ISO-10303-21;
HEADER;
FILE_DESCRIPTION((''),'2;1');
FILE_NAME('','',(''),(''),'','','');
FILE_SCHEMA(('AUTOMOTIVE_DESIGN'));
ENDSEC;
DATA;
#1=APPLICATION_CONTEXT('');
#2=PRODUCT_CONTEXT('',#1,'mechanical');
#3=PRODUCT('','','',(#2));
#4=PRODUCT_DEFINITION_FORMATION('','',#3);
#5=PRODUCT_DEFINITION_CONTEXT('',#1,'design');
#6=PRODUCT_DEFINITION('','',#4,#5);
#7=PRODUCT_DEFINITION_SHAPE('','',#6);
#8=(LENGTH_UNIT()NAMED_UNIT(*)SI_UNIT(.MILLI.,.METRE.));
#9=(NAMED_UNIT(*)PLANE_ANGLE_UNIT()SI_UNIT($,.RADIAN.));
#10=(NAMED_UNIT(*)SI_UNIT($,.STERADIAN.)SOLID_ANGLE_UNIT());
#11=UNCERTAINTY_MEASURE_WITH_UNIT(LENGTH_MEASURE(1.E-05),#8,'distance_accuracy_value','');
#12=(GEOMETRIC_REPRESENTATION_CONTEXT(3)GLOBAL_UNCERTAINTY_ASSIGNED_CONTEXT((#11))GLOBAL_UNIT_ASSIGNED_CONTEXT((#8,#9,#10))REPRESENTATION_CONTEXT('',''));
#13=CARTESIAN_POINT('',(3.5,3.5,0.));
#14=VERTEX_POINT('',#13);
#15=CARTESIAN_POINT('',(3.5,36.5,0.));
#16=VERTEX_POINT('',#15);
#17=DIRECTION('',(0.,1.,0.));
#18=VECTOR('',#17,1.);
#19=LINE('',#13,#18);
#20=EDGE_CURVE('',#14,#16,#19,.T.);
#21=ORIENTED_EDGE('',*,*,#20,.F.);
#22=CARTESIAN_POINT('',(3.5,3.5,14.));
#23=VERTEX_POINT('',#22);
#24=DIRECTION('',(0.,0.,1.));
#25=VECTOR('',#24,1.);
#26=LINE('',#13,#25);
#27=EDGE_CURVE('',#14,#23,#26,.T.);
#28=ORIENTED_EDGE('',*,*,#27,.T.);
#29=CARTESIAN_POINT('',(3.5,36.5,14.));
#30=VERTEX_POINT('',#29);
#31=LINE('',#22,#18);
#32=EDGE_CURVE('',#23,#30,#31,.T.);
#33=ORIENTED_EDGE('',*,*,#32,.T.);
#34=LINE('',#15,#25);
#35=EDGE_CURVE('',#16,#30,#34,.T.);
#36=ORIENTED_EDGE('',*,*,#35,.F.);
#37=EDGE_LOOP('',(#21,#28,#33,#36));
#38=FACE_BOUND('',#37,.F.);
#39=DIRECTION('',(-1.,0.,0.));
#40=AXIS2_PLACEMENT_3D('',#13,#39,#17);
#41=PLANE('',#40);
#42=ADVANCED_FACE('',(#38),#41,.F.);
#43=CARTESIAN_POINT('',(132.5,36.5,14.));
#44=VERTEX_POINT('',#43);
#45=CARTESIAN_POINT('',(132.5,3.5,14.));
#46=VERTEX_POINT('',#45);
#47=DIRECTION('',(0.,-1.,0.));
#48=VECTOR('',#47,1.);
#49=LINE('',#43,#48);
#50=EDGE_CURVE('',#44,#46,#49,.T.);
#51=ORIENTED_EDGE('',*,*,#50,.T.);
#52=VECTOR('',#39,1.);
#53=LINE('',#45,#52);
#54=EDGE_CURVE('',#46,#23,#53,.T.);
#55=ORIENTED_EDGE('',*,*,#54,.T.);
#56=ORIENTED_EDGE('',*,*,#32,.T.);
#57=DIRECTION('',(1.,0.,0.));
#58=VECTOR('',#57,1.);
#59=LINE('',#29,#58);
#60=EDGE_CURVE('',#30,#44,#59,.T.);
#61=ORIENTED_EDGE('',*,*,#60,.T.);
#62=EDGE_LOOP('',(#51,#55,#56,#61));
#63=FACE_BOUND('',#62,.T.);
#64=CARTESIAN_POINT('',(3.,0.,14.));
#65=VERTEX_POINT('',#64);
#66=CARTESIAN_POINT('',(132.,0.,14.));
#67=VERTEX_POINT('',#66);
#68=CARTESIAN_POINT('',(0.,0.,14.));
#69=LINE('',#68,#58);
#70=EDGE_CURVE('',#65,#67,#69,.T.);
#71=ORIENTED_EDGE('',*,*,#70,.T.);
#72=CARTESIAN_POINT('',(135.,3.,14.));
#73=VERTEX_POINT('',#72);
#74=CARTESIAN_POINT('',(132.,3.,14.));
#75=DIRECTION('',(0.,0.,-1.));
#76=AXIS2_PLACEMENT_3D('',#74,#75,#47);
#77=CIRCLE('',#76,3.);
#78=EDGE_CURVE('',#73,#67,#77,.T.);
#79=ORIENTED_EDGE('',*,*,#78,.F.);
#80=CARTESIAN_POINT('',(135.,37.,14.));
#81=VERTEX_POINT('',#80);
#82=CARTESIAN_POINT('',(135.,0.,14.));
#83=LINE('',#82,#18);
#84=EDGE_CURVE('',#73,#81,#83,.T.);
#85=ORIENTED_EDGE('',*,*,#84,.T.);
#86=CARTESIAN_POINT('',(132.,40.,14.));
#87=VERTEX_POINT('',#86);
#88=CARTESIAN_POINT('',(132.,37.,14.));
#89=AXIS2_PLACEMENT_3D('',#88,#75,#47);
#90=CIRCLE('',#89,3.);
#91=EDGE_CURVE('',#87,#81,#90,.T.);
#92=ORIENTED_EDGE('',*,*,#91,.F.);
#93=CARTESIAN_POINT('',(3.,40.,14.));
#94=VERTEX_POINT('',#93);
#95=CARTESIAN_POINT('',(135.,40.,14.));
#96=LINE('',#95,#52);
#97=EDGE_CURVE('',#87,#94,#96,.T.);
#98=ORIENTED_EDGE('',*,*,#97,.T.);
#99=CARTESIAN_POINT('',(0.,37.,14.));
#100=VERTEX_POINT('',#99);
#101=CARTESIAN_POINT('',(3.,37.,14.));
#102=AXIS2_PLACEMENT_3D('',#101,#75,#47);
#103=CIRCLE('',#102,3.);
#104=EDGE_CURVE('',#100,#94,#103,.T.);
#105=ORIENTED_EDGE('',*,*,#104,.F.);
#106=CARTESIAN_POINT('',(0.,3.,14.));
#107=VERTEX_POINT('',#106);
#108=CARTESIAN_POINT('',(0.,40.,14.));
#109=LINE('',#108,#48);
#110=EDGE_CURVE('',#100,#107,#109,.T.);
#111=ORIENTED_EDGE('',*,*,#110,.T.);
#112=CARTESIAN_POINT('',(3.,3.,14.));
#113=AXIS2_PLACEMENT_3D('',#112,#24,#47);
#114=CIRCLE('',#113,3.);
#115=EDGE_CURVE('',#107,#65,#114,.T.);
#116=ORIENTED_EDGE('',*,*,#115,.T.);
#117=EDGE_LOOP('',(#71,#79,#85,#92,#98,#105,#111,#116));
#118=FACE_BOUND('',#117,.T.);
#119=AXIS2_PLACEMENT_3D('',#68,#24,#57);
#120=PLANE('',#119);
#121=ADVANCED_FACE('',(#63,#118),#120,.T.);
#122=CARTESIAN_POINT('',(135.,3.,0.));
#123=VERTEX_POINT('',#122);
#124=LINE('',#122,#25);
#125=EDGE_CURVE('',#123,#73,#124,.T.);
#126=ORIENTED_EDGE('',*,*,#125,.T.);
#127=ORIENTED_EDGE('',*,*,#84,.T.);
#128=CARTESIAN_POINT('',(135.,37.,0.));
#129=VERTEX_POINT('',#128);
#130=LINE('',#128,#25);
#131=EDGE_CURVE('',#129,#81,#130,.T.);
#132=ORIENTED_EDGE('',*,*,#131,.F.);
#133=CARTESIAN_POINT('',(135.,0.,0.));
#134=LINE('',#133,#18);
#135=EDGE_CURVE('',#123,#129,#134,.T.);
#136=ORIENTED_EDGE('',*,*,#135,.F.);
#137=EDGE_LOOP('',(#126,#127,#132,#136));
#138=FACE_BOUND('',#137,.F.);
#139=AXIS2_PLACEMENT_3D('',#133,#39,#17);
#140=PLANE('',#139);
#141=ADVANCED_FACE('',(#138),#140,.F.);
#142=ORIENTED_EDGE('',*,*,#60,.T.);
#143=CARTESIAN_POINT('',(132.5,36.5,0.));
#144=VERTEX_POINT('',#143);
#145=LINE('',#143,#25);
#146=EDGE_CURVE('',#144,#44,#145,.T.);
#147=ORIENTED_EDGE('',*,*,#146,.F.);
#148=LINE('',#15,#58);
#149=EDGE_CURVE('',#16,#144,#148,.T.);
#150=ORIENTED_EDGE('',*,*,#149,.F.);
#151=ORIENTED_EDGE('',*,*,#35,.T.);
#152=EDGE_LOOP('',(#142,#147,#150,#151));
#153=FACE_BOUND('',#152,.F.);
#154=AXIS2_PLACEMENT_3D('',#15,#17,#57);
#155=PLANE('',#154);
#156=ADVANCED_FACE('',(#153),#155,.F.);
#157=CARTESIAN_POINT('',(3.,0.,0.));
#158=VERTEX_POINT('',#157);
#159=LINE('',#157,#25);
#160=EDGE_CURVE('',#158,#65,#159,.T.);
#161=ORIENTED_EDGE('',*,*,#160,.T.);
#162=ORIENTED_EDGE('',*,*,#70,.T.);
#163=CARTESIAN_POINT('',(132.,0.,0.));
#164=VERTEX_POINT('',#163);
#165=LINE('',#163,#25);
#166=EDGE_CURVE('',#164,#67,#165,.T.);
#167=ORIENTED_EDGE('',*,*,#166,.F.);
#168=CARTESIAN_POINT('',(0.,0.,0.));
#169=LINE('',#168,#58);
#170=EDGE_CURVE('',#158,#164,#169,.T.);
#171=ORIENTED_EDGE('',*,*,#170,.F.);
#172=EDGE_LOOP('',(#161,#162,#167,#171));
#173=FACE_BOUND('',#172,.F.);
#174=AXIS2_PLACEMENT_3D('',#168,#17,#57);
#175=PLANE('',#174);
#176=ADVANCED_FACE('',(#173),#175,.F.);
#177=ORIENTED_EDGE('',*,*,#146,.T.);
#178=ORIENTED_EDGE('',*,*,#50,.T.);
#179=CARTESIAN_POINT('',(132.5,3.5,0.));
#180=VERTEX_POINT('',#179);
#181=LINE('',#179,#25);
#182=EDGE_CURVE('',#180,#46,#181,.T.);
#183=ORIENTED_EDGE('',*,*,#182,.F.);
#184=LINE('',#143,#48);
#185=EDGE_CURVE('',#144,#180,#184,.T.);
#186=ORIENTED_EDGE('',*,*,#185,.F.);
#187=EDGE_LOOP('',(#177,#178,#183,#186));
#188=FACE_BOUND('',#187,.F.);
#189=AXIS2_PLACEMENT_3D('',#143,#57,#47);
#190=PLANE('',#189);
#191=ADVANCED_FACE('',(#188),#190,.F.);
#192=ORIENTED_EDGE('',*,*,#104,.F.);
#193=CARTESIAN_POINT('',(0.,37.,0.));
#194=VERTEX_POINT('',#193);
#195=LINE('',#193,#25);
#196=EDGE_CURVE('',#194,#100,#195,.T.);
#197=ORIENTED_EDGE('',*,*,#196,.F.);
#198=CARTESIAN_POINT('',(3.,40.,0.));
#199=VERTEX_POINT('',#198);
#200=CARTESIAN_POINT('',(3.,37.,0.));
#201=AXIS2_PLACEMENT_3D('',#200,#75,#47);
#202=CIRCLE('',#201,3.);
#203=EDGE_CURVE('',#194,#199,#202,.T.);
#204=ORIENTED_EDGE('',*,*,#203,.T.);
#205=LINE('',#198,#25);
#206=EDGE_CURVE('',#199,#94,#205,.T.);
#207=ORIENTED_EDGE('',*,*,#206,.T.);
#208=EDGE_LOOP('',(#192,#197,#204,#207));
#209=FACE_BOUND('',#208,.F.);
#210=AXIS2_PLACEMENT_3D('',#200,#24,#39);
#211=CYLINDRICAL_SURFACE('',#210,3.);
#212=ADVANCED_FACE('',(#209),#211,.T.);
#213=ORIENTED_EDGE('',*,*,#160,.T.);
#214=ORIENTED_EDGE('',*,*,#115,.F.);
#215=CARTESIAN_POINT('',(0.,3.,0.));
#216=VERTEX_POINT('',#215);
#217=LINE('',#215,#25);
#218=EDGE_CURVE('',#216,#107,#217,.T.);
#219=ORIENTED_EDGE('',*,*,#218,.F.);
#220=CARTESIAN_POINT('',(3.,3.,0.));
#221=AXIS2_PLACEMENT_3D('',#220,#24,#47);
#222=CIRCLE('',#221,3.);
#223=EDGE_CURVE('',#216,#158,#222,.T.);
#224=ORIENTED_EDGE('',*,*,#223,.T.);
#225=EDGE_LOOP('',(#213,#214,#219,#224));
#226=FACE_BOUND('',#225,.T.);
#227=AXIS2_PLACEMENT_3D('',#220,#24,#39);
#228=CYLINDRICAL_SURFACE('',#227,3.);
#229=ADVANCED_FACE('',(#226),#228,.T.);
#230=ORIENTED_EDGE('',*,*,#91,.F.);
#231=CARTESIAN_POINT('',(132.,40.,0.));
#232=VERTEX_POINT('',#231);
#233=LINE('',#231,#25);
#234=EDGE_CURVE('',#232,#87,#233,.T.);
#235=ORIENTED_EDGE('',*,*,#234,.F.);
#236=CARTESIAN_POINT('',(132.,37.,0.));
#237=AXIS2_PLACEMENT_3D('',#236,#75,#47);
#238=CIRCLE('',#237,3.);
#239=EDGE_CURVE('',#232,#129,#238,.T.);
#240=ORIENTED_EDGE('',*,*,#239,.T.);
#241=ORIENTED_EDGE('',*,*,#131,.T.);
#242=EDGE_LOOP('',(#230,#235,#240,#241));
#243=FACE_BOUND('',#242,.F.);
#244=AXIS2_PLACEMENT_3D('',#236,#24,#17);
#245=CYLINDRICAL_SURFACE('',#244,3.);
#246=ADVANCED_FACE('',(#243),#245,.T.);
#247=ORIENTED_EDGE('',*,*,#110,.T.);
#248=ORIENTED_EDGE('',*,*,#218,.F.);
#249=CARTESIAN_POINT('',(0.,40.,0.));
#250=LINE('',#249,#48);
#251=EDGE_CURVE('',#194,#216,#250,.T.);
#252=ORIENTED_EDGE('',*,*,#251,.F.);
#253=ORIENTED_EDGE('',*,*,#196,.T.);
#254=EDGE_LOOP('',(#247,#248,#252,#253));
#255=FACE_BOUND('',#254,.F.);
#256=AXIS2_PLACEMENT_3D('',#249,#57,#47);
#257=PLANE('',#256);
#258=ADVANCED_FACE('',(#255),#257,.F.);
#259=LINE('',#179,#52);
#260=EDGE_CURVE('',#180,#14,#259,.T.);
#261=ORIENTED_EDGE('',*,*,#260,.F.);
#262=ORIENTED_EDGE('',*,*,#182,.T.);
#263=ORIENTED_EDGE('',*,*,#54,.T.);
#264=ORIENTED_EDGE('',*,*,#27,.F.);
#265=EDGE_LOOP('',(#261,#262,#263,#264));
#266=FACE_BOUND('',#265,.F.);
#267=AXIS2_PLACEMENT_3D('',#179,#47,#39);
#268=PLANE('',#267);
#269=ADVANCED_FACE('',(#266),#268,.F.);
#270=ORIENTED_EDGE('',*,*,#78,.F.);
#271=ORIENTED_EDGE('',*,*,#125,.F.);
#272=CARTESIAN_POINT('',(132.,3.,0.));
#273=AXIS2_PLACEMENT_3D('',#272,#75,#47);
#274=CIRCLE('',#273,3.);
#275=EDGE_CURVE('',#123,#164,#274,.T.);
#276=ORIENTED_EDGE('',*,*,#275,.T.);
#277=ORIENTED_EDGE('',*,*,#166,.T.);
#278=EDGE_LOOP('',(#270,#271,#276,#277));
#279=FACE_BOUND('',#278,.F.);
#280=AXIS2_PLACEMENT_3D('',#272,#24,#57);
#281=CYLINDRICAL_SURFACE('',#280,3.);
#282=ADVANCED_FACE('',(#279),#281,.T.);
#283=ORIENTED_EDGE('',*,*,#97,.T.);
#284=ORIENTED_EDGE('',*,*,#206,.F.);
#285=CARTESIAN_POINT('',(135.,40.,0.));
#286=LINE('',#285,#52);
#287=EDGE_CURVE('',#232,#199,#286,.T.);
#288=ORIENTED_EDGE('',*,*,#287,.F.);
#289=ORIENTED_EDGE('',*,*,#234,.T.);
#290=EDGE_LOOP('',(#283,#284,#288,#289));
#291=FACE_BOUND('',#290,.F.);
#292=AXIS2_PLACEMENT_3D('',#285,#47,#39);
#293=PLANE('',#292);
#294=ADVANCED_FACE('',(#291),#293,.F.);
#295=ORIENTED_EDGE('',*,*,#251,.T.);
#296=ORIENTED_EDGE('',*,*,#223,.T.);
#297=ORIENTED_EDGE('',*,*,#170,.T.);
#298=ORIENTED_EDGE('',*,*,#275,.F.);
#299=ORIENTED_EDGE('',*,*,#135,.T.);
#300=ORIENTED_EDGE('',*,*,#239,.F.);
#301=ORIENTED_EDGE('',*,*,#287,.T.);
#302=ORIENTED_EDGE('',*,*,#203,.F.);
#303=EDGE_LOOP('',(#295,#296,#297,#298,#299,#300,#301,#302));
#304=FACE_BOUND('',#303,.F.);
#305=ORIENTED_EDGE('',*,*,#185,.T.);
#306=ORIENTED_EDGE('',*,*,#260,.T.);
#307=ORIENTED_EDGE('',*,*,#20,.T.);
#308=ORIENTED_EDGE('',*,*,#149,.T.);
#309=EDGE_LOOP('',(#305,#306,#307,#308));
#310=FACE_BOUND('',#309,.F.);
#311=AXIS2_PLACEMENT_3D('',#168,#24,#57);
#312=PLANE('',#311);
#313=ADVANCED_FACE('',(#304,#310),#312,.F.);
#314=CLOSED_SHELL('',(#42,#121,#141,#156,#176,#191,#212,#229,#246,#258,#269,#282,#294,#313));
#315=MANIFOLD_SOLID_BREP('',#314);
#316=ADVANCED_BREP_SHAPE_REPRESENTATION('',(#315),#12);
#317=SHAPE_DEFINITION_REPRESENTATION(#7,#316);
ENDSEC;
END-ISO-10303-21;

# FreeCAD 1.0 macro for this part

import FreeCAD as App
import Part
import Sketcher

V = App.Vector


def edges_at(feature, points):
    """Names of the edges that pass closest to the given points."""
    edges = feature.Shape.Edges
    near = lambda p: min(range(len(edges)), key=lambda i: edges[i].distToShape(Part.Vertex(*p))[0])
    return sorted({f"Edge{near(p) + 1}" for p in points})

doc = App.newDocument("Part")
params = doc.addObject("Spreadsheet::Sheet", "Params")
for row, (alias, value) in enumerate([
    ("sketch1_width", "135 mm"),
    ("sketch1_width2", "129 mm"),
    ("sketch1_height", "40 mm"),
    ("sketch1_height2", "33 mm"),
    ("pad1_length", "14 mm"),
    ("fillet_radius", "3 mm"),
], start=1):
    params.set(f"A{row}", alias)
    params.set(f"B{row}", "=" + value)
    params.setAlias(f"B{row}", alias)

body = doc.addObject("PartDesign::Body", "Body")

sketch1 = body.newObject("Sketcher::SketchObject", "Sketch")
sketch1.AttachmentSupport = (doc.getObject("XY_Plane"), [""])
sketch1.MapMode = "FlatFace"
sketch1.addGeometry(Part.LineSegment(V(0, 40, 0), V(0, 0, 0)), False)
sketch1.addGeometry(Part.LineSegment(V(0, 0, 0), V(135, 0, 0)), False)
sketch1.addGeometry(Part.LineSegment(V(135, 0, 0), V(135, 40, 0)), False)
sketch1.addGeometry(Part.LineSegment(V(135, 40, 0), V(0, 40, 0)), False)
sketch1.addGeometry(Part.LineSegment(V(3.5, 3.5, 0), V(3.5, 36.5, 0)), False)
sketch1.addGeometry(Part.LineSegment(V(3.5, 36.5, 0), V(132.5, 36.5, 0)), False)
sketch1.addGeometry(Part.LineSegment(V(132.5, 36.5, 0), V(132.5, 3.5, 0)), False)
sketch1.addGeometry(Part.LineSegment(V(132.5, 3.5, 0), V(3.5, 3.5, 0)), False)
sketch1.addConstraint(Sketcher.Constraint("Coincident", 0, 2, 1, 1))
sketch1.addConstraint(Sketcher.Constraint("Coincident", 1, 2, 2, 1))
sketch1.addConstraint(Sketcher.Constraint("Coincident", 2, 2, 3, 1))
sketch1.addConstraint(Sketcher.Constraint("Coincident", 3, 2, 0, 1))
sketch1.addConstraint(Sketcher.Constraint("Coincident", 4, 2, 5, 1))
sketch1.addConstraint(Sketcher.Constraint("Coincident", 5, 2, 6, 1))
sketch1.addConstraint(Sketcher.Constraint("Coincident", 6, 2, 7, 1))
sketch1.addConstraint(Sketcher.Constraint("Coincident", 7, 2, 4, 1))
sketch1.addConstraint(Sketcher.Constraint("Vertical", 0))
sketch1.addConstraint(Sketcher.Constraint("Horizontal", 1))
sketch1.addConstraint(Sketcher.Constraint("Vertical", 2))
sketch1.addConstraint(Sketcher.Constraint("Horizontal", 3))
sketch1.addConstraint(Sketcher.Constraint("Vertical", 4))
sketch1.addConstraint(Sketcher.Constraint("Horizontal", 5))
sketch1.addConstraint(Sketcher.Constraint("Vertical", 6))
sketch1.addConstraint(Sketcher.Constraint("Horizontal", 7))
sketch1.addConstraint(Sketcher.Constraint("Coincident", 0, 2, -1, 1))
sketch1.addConstraint(Sketcher.Constraint("DistanceX", 1, 1, 1, 2, 135.0))
sketch1.addConstraint(Sketcher.Constraint("DistanceX", 5, 1, 5, 2, 129.0))
sketch1.addConstraint(Sketcher.Constraint("DistanceY", 0, 2, 0, 1, 40.0))
sketch1.addConstraint(Sketcher.Constraint("DistanceY", 4, 1, 4, 2, 33.0))
sketch1.addConstraint(Sketcher.Constraint("DistanceX", -1, 1, 4, 2, 3.5))
sketch1.addConstraint(Sketcher.Constraint("DistanceY", -1, 1, 6, 2, 3.5))
sketch1.setExpression("Constraints[17]", "Params.sketch1_width")
sketch1.setExpression("Constraints[18]", "Params.sketch1_width2")
sketch1.setExpression("Constraints[19]", "Params.sketch1_height")
sketch1.setExpression("Constraints[20]", "Params.sketch1_height2")
pad1 = body.newObject("PartDesign::Pad", "Pad")
pad1.Profile = sketch1
pad1.setExpression("Length", "Params.pad1_length")
doc.recompute()

fillet = body.newObject("PartDesign::Fillet", "Fillet")
fillet.Base = (pad1, edges_at(pad1, [
    (135, 0, 7),
    (135, 40, 7),
    (0, 0, 7),
    (0, 40, 7),
]))
fillet.setExpression("Radius", "Params.fillet_radius")

doc.recompute()
